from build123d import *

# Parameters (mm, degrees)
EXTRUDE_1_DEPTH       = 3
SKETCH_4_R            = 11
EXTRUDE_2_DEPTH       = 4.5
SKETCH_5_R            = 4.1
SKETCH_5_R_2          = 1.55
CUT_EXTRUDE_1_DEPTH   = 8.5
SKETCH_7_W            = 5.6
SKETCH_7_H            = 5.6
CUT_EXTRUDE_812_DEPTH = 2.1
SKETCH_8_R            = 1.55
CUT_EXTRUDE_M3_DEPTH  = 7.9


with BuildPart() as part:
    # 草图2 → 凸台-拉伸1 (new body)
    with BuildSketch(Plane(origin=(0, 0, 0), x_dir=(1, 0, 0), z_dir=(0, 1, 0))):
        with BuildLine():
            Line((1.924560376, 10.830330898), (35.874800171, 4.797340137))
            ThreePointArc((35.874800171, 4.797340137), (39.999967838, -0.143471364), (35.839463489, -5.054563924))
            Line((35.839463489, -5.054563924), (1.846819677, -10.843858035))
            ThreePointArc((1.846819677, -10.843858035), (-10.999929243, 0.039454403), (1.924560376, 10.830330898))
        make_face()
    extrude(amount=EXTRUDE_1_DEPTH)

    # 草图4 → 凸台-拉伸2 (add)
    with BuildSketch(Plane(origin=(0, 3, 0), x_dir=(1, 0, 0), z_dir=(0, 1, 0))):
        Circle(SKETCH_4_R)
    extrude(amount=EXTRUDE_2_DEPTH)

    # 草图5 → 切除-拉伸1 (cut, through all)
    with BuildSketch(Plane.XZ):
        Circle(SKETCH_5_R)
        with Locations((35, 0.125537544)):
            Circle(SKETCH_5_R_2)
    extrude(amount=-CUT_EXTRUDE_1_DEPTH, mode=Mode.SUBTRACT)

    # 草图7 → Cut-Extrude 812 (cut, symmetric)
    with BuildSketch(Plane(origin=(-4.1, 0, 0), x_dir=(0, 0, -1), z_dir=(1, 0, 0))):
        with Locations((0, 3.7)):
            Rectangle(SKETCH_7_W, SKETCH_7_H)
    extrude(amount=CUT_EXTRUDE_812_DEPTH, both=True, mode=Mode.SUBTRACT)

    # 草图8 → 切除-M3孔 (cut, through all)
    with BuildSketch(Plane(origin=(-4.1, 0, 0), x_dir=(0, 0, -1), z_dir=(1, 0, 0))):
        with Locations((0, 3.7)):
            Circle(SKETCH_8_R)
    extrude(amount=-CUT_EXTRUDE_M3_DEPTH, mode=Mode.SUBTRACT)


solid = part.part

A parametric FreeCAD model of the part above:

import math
import FreeCAD as App
import Part
import Sketcher
Q = App.Units.Quantity

doc = App.newDocument("Part")
body = doc.addObject("PartDesign::Body", "Body")

# Sketch on XZ plane
sketch1 = body.newObject("Sketcher::SketchObject", "Sketch")
sketch1.AttachmentSupport = (doc.getObject("XZ_Plane"), [""])
sketch1.MapMode = "FlatFace"
sketch1.addGeometry([
    Part.LineSegment(App.Vector(35.8748, -4.79734, 0), App.Vector(1.92456, -10.830331, 0)),
    Part.ArcOfCircle(Part.Circle(App.Vector(0, 0, 0), App.Vector(0, 0, 1), 11), math.radians(80.334681), math.radians(280.076332)),
    Part.LineSegment(App.Vector(1.84682, 10.843858, 0), App.Vector(35.839463, 5.054564, 0)),
    Part.ArcOfCircle(Part.Circle(App.Vector(35, 0.125538, 0), App.Vector(0, 0, 1), 5), math.radians(-79.923668), math.radians(80.334681)),
], False)
sketch1.addConstraint([
    Sketcher.Constraint("Tangent", 0, 2, 1, 2),
    Sketcher.Constraint("Tangent", 1, 1, 2, 1),
    Sketcher.Constraint("Tangent", 2, 2, 3, 2),
    Sketcher.Constraint("Tangent", 3, 1, 0, 1),
    Sketcher.Constraint("Coincident", 1, 3, -1, 1),
    Sketcher.Constraint("Radius", 1, Q("11 mm")),
    Sketcher.Constraint("Radius", 3, Q("5 mm")),
    Sketcher.Constraint("DistanceX", -1, 1, 3, 3, Q("35 mm")),
    Sketcher.Constraint("DistanceX", -1, 1, 3, 1, Q("35.8748 mm")),
])
pad1 = body.newObject("PartDesign::Pad", "Pad")
pad1.Profile = sketch1
pad1.Length = 3
pad1.Reversed = True

# Sketch on XZ plane
sketch2 = body.newObject("Sketcher::SketchObject", "Sketch001")
sketch2.AttachmentSupport = (doc.getObject("XZ_Plane"), [""])
sketch2.MapMode = "FlatFace"
sketch2.AttachmentOffset = App.Placement(App.Vector(0, 0, -3), App.Rotation())
sketch2.addGeometry(Part.Circle(App.Vector(0, 0, 0), App.Vector(0, 0, 1), 11), False)
sketch2.addConstraint([
    Sketcher.Constraint("Coincident", 0, 3, -1, 1),
    Sketcher.Constraint("Diameter", 0, Q("22 mm")),
])
pad2 = body.newObject("PartDesign::Pad", "Pad001")
pad2.Profile = sketch2
pad2.Length = 4.5
pad2.Reversed = True

# Sketch on XZ plane
sketch3 = body.newObject("Sketcher::SketchObject", "Sketch002")
sketch3.AttachmentSupport = (doc.getObject("XZ_Plane"), [""])
sketch3.MapMode = "FlatFace"
sketch3.addGeometry([
    Part.Circle(App.Vector(0, 0, 0), App.Vector(0, 0, 1), 4.1),
    Part.Circle(App.Vector(35, 0.125538, 0), App.Vector(0, 0, 1), 1.55),
], False)
sketch3.addConstraint([
    Sketcher.Constraint("Coincident", 0, 3, -1, 1),
    Sketcher.Constraint("Diameter", 0, Q("8.2 mm")),
    Sketcher.Constraint("Diameter", 1, Q("3.1 mm")),
    Sketcher.Constraint("DistanceX", -1, 1, 1, 3, Q("35 mm")),
    Sketcher.Constraint("DistanceY", -1, 1, 1, 3, Q("0.125538 mm")),
])
pocket1 = body.newObject("PartDesign::Pocket", "Pocket")
pocket1.Profile = sketch3
pocket1.Type = "ThroughAll"

# Sketch on YZ plane
sketch4 = body.newObject("Sketcher::SketchObject", "Sketch003")
sketch4.AttachmentSupport = (doc.getObject("YZ_Plane"), [""])
sketch4.MapMode = "FlatFace"
sketch4.AttachmentOffset = App.Placement(App.Vector(0, 0, -4.1), App.Rotation())
sketch4.addGeometry([
    Part.LineSegment(App.Vector(6.5, 2.8, 0), App.Vector(0.9, 2.8, 0)),
    Part.LineSegment(App.Vector(0.9, 2.8, 0), App.Vector(0.9, -2.8, 0)),
    Part.LineSegment(App.Vector(0.9, -2.8, 0), App.Vector(6.5, -2.8, 0)),
    Part.LineSegment(App.Vector(6.5, -2.8, 0), App.Vector(6.5, 2.8, 0)),
], False)
sketch4.addConstraint([
    Sketcher.Constraint("Coincident", 0, 2, 1, 1),
    Sketcher.Constraint("Coincident", 1, 2, 2, 1),
    Sketcher.Constraint("Coincident", 2, 2, 3, 1),
    Sketcher.Constraint("Coincident", 3, 2, 0, 1),
    Sketcher.Constraint("Horizontal", 0),
    Sketcher.Constraint("Vertical", 1),
    Sketcher.Constraint("Horizontal", 2),
    Sketcher.Constraint("Vertical", 3),
    Sketcher.Constraint("Equal", 2, 1),
    Sketcher.Constraint("DistanceX", 0, 2, 0, 1, Q("5.6 mm")),
    Sketcher.Constraint("DistanceX", -1, 1, 0, 2, Q("0.9 mm")),
    Sketcher.Constraint("DistanceY", -1, 1, 0, 2, Q("2.8 mm")),
])
pocket2 = body.newObject("PartDesign::Pocket", "Pocket001")
pocket2.Profile = sketch4
pocket2.Length = 4.2
pocket2.Midplane = True

# Sketch on YZ plane
sketch5 = body.newObject("Sketcher::SketchObject", "Sketch004")
sketch5.AttachmentSupport = (doc.getObject("YZ_Plane"), [""])
sketch5.MapMode = "FlatFace"
sketch5.AttachmentOffset = App.Placement(App.Vector(0, 0, -4.1), App.Rotation())
sketch5.addGeometry(Part.Circle(App.Vector(3.7, 0, 0), App.Vector(0, 0, 1), 1.55), False)
sketch5.addConstraint([
    Sketcher.Constraint("PointOnObject", 0, 3, -1),
    Sketcher.Constraint("Diameter", 0, Q("3.1 mm")),
    Sketcher.Constraint("DistanceX", -1, 1, 0, 3, Q("3.7 mm")),
])
pocket3 = body.newObject("PartDesign::Pocket", "Pocket002")
pocket3.Profile = sketch5
pocket3.Type = "ThroughAll"

doc.recompute()
